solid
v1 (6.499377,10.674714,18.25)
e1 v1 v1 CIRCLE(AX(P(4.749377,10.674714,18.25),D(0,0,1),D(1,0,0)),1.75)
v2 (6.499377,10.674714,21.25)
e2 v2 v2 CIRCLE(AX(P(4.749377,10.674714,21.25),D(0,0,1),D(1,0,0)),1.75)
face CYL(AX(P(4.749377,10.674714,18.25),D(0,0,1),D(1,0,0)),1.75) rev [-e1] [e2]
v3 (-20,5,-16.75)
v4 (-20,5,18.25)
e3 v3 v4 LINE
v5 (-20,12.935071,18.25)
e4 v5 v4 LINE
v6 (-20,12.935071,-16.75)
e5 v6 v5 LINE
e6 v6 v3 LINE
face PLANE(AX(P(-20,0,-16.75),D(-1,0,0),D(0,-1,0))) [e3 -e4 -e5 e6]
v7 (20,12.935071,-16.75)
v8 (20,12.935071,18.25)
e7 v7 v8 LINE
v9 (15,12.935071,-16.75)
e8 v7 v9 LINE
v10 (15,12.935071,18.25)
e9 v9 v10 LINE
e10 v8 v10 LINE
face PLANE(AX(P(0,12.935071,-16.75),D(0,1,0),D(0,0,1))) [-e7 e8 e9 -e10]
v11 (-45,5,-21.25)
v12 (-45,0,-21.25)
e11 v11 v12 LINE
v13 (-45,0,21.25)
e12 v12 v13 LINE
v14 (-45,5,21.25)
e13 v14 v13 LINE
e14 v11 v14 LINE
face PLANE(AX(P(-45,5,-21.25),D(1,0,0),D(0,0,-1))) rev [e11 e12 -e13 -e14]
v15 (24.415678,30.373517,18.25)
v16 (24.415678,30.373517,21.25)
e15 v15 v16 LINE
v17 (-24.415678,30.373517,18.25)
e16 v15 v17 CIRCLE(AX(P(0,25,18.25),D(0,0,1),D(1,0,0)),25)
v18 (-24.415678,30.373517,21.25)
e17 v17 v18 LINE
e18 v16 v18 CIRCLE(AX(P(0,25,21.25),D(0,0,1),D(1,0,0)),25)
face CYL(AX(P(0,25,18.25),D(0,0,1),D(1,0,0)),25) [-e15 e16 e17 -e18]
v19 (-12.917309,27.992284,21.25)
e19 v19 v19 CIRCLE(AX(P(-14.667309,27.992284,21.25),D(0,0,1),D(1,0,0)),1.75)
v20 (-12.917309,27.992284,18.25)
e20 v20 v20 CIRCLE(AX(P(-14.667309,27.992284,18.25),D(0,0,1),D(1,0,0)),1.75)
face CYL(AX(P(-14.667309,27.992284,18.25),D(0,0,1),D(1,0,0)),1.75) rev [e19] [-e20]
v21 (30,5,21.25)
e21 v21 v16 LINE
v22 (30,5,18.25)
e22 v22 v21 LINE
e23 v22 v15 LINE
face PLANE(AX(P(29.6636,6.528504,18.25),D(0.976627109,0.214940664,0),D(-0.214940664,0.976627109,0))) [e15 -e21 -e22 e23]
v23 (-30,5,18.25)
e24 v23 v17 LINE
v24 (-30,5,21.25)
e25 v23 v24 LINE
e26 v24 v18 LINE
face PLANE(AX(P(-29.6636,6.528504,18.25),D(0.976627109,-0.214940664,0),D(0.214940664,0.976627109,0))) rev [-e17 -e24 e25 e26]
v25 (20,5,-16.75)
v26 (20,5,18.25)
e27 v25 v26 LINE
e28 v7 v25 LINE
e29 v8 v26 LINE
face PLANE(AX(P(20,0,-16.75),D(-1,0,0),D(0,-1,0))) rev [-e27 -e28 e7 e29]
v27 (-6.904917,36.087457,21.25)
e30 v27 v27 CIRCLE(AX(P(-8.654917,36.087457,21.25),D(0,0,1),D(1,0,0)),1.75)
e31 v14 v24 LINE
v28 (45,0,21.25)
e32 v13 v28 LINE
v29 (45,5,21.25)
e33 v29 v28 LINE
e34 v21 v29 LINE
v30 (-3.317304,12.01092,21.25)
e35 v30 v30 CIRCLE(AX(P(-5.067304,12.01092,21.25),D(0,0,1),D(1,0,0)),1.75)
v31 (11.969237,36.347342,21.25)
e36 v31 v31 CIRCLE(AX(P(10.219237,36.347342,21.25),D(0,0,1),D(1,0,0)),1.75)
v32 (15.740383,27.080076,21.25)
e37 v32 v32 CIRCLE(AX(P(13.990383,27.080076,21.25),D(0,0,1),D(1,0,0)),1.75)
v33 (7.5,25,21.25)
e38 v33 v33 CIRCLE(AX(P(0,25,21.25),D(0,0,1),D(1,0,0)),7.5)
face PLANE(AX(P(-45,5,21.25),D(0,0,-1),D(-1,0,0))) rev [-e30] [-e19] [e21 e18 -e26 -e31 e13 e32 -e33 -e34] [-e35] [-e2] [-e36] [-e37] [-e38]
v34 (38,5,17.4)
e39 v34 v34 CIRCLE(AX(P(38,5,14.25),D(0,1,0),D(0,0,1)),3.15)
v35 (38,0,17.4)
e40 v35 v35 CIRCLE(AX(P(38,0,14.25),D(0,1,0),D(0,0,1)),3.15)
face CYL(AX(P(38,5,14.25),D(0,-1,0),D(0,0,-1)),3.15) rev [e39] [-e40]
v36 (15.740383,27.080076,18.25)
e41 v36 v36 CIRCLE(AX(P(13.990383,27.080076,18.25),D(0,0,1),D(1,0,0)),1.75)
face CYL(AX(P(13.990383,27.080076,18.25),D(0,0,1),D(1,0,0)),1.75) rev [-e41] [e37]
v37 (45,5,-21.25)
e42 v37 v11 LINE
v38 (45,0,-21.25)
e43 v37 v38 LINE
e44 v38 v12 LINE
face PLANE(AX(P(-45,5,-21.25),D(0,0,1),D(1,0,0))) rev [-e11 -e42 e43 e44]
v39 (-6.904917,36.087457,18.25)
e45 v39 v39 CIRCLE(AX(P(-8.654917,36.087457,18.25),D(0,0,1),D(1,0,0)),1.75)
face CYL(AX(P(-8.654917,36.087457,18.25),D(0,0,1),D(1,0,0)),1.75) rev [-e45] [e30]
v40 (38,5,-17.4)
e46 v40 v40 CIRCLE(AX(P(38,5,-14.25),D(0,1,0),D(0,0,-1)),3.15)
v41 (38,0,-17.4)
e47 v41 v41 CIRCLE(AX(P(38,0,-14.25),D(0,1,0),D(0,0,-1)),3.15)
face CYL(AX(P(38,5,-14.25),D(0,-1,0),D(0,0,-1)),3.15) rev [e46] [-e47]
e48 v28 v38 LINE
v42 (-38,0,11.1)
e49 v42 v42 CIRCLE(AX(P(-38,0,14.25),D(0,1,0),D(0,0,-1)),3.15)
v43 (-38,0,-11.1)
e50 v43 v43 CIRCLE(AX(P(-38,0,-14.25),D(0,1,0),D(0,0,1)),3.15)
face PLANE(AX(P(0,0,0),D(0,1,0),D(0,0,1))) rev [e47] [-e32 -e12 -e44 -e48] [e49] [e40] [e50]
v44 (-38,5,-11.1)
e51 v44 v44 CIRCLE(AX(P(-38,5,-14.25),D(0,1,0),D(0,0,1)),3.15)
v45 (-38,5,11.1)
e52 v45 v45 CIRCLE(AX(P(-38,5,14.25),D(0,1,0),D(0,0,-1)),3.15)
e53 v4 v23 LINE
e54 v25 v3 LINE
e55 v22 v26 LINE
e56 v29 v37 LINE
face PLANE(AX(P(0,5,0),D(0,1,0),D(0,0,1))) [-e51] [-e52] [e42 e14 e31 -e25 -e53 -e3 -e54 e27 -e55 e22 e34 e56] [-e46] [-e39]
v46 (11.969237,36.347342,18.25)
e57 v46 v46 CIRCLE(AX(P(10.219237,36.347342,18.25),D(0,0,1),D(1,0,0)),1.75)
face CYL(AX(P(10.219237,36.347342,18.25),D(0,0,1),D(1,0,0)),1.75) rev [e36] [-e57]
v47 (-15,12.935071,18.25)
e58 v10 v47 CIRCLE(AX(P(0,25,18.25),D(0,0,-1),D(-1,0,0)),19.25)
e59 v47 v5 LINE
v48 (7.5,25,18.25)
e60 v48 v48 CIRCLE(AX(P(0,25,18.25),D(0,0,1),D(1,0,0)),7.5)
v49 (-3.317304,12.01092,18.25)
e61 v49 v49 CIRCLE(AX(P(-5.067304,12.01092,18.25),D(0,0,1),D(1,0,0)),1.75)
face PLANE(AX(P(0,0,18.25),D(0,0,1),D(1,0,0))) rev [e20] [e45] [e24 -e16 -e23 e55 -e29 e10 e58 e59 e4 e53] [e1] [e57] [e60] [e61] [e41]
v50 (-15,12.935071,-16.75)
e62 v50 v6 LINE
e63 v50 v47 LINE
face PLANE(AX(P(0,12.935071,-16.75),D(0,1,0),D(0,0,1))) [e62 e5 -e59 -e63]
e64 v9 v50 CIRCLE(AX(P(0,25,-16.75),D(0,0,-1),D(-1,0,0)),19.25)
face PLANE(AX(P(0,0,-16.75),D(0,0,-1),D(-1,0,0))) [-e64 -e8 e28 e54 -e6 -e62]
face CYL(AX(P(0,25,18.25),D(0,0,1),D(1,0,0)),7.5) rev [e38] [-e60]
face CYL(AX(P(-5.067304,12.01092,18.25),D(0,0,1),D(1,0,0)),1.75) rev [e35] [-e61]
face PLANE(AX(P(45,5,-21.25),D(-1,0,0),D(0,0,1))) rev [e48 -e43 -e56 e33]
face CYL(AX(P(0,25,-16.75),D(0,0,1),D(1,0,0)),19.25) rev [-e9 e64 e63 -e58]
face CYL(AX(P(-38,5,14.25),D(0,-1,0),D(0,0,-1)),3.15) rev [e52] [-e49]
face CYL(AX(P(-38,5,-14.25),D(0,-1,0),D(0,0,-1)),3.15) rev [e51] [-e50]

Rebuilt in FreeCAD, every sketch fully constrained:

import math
import FreeCAD as App
import Part
import Sketcher
Q = App.Units.Quantity

doc = App.newDocument("Part")
params = doc.addObject("Spreadsheet::Sheet", "Params")
for row, (alias, value) in enumerate([
    ("sketch1_diameter", "6.3 mm"),
    ("sketch1_width", "90 mm"),
    ("sketch1_height", "42.5 mm"),
    ("pad1_length", "5 mm"),
    ("sketch2_diameter", "15 mm"),
    ("sketch2_radius", "25 mm"),
    ("sketch2_diameter2", "3.5 mm"),
    ("sketch2_width", "60 mm"),
    ("pad2_length", "3 mm"),
    ("sketch3_width", "5 mm"),
    ("sketch3_width2", "40 mm"),
    ("sketch3_radius", "19.25 mm"),
    ("pad3_length", "35 mm"),
], start=1):
    params.set(f"A{row}", alias)
    params.set(f"B{row}", "=" + value)
    params.setAlias(f"B{row}", alias)

body = doc.addObject("PartDesign::Body", "Body")

# Sketch on XZ plane
sketch1 = doc.addObject("Sketcher::SketchObject", "Sketch")
body.addObject(sketch1)
sketch1.AttachmentSupport = (doc.XZ_Plane, [""])
sketch1.MapMode = "FlatFace"
sketch1.addGeometry(Part.LineSegment(App.Vector(-45, -21.2, 0), App.Vector(-45, 21.2, 0)), False)
sketch1.addGeometry(Part.LineSegment(App.Vector(-45, 21.2, 0), App.Vector(45, 21.2, 0)), False)
sketch1.addGeometry(Part.LineSegment(App.Vector(45, 21.2, 0), App.Vector(45, -21.2, 0)), False)
sketch1.addGeometry(Part.LineSegment(App.Vector(45, -21.2, 0), App.Vector(-45, -21.2, 0)), False)
sketch1.addGeometry(Part.Circle(App.Vector(-38, 14.2, 0), App.Vector(0, 0, 1), 3.1), False)
sketch1.addGeometry(Part.Circle(App.Vector(38, 14.2, 0), App.Vector(0, 0, 1), 3.1), False)
sketch1.addGeometry(Part.Circle(App.Vector(-38, -14.2, 0), App.Vector(0, 0, 1), 3.1), False)
sketch1.addGeometry(Part.Circle(App.Vector(38, -14.2, 0), App.Vector(0, 0, 1), 3.1), False)
sketch1.addConstraint(Sketcher.Constraint("Coincident", 0, 2, 1, 1))
sketch1.addConstraint(Sketcher.Constraint("Coincident", 1, 2, 2, 1))
sketch1.addConstraint(Sketcher.Constraint("Coincident", 2, 2, 3, 1))
sketch1.addConstraint(Sketcher.Constraint("Coincident", 3, 2, 0, 1))
sketch1.addConstraint(Sketcher.Constraint("Vertical", 0))
sketch1.addConstraint(Sketcher.Constraint("Horizontal", 1))
sketch1.addConstraint(Sketcher.Constraint("Vertical", 2))
sketch1.addConstraint(Sketcher.Constraint("Horizontal", 3))
sketch1.addConstraint(Sketcher.Constraint("Equal", 4, 5))
sketch1.addConstraint(Sketcher.Constraint("Equal", 5, 6))
sketch1.addConstraint(Sketcher.Constraint("Equal", 6, 7))
sketch1.addConstraint(Sketcher.Constraint("Symmetric", 5, 3, 6, 3, -1, 1))
sketch1.addConstraint(Sketcher.Constraint("Symmetric", 4, 3, 7, 3, -1, 1))
sketch1.addConstraint(Sketcher.Constraint("Symmetric", 0, 2, 2, 2, -1, 1))
sketch1.addConstraint(Sketcher.Constraint("Symmetric", 4, 3, 5, 3, -2))
sketch1.addConstraint(Sketcher.Constraint("Diameter", 4, Q("6.3 mm")))
sketch1.addConstraint(Sketcher.Constraint("DistanceX", 1, 1, 1, 2, Q("90 mm")))
sketch1.addConstraint(Sketcher.Constraint("DistanceY", 0, 1, 0, 2, Q("42.5 mm")))
sketch1.addConstraint(Sketcher.Constraint("DistanceX", 4, 3, -1, 1, Q("38 mm")))
sketch1.addConstraint(Sketcher.Constraint("DistanceY", 4, 3, 0, 2, Q("7 mm")))
sketch1.setExpression("Constraints[15]", "Params.sketch1_diameter")
sketch1.setExpression("Constraints[16]", "Params.sketch1_width")
sketch1.setExpression("Constraints[17]", "Params.sketch1_height")
pad1 = doc.addObject("PartDesign::Pad", "Pad")
body.addObject(pad1)
pad1.Profile = sketch1
pad1.setExpression("Length", "Params.pad1_length")
pad1.Reversed = True

# Sketch on XY plane
sketch2 = doc.addObject("Sketcher::SketchObject", "Sketch001")
body.addObject(sketch2)
sketch2.AttachmentSupport = (doc.XY_Plane, [""])
sketch2.MapMode = "FlatFace"
sketch2.AttachmentOffset = App.Placement(App.Vector(0, 0, 21.25), App.Rotation())
sketch2.addGeometry(Part.LineSegment(App.Vector(-30, 5, 0), App.Vector(30, 5, 0)), False)
sketch2.addGeometry(Part.LineSegment(App.Vector(30, 5, 0), App.Vector(24.4, 30.4, 0)), False)
sketch2.addGeometry(Part.ArcOfCircle(Part.Circle(App.Vector(0, 25, 0), App.Vector(0, 0, 1), 25), math.radians(12), math.radians(168)), False)
sketch2.addGeometry(Part.LineSegment(App.Vector(-24.4, 30.4, 0), App.Vector(-30, 5, 0)), False)
sketch2.addGeometry(Part.Circle(App.Vector(-5.1, 12, 0), App.Vector(0, 0, 1), 1.8), False)
sketch2.addGeometry(Part.Circle(App.Vector(4.7, 10.7, 0), App.Vector(0, 0, 1), 1.8), False)
sketch2.addGeometry(Part.Circle(App.Vector(-14.7, 28, 0), App.Vector(0, 0, 1), 1.8), False)
sketch2.addGeometry(Part.Circle(App.Vector(-8.7, 36.1, 0), App.Vector(0, 0, 1), 1.8), False)
sketch2.addGeometry(Part.Circle(App.Vector(0, 25, 0), App.Vector(0, 0, 1), 7.5), False)
sketch2.addGeometry(Part.Circle(App.Vector(14, 27.1, 0), App.Vector(0, 0, 1), 1.8), False)
sketch2.addGeometry(Part.Circle(App.Vector(10.2, 36.3, 0), App.Vector(0, 0, 1), 1.8), False)
sketch2.addConstraint(Sketcher.Constraint("Coincident", 0, 2, 1, 1))
sketch2.addConstraint(Sketcher.Constraint("Tangent", 1, 2, 2, 1))
sketch2.addConstraint(Sketcher.Constraint("Tangent", 2, 2, 3, 1))
sketch2.addConstraint(Sketcher.Constraint("Coincident", 3, 2, 0, 1))
sketch2.addConstraint(Sketcher.Constraint("Horizontal", 0))
sketch2.addConstraint(Sketcher.Constraint("Coincident", 8, 3, 2, 3))
sketch2.addConstraint(Sketcher.Constraint("Equal", 4, 5))
sketch2.addConstraint(Sketcher.Constraint("Equal", 5, 6))
sketch2.addConstraint(Sketcher.Constraint("Equal", 6, 7))
sketch2.addConstraint(Sketcher.Constraint("Equal", 7, 9))
sketch2.addConstraint(Sketcher.Constraint("Equal", 9, 10))
sketch2.addConstraint(Sketcher.Constraint("Symmetric", 1, 2, 2, 2, -2))
sketch2.addConstraint(Sketcher.Constraint("Diameter", 8, Q("15 mm")))
sketch2.addConstraint(Sketcher.Constraint("Radius", 2, Q("25 mm")))
sketch2.addConstraint(Sketcher.Constraint("Diameter", 4, Q("3.5 mm")))
sketch2.addConstraint(Sketcher.Constraint("DistanceX", 0, 1, 0, 2, Q("60 mm")))
sketch2.addConstraint(Sketcher.Constraint("DistanceY", -1, 1, 2, 3, Q("25 mm")))
sketch2.addConstraint(Sketcher.Constraint("DistanceY", -1, 1, 0, 2, Q("5 mm")))
sketch2.addConstraint(Sketcher.Constraint("DistanceX", 7, 3, 9, 3, Q("22.6453 mm")))
sketch2.addConstraint(Sketcher.Constraint("DistanceY", -1, 1, 4, 3, Q("12.01092 mm")))
sketch2.addConstraint(Sketcher.Constraint("DistanceX", 6, 3, -1, 1, Q("14.667309 mm")))
sketch2.addConstraint(Sketcher.Constraint("DistanceY", -1, 1, 10, 3, Q("36.347342 mm")))
sketch2.addConstraint(Sketcher.Constraint("DistanceX", 4, 3, 5, 3, Q("9.816681 mm")))
sketch2.addConstraint(Sketcher.Constraint("DistanceY", 5, 3, 6, 3, Q("17.31757 mm")))
sketch2.addConstraint(Sketcher.Constraint("DistanceX", 6, 3, 7, 3, Q("6.012392 mm")))
sketch2.addConstraint(Sketcher.Constraint("DistanceY", 9, 3, 7, 3, Q("9.00738 mm")))
sketch2.addConstraint(Sketcher.Constraint("DistanceX", 5, 3, 10, 3, Q("5.46986 mm")))
sketch2.addConstraint(Sketcher.Constraint("DistanceY", 9, 3, 1, 2, Q("3.29344 mm")))
sketch2.addConstraint(Sketcher.Constraint("DistanceX", 10, 3, 1, 2, Q("14.196441 mm")))
sketch2.addConstraint(Sketcher.Constraint("DistanceY", -1, 1, 5, 3, Q("10.674714 mm")))
sketch2.setExpression("Constraints[12]", "Params.sketch2_diameter")
sketch2.setExpression("Constraints[13]", "Params.sketch2_radius")
sketch2.setExpression("Constraints[14]", "Params.sketch2_diameter2")
sketch2.setExpression("Constraints[15]", "Params.sketch2_width")
pad2 = doc.addObject("PartDesign::Pad", "Pad001")
body.addObject(pad2)
pad2.Profile = sketch2
pad2.setExpression("Length", "Params.pad2_length")
pad2.Reversed = True

# Sketch on XY plane
sketch3 = doc.addObject("Sketcher::SketchObject", "Sketch002")
body.addObject(sketch3)
sketch3.AttachmentSupport = (doc.XY_Plane, [""])
sketch3.MapMode = "FlatFace"
sketch3.AttachmentOffset = App.Placement(App.Vector(0, 0, 18.25), App.Rotation())
sketch3.addGeometry(Part.ArcOfCircle(Part.Circle(App.Vector(0, 25, 0), App.Vector(0, 0, 1), 19), math.radians(-141), math.radians(-39)), False)
sketch3.addGeometry(Part.LineSegment(App.Vector(15, 13, 0), App.Vector(20, 13, 0)), False)
sketch3.addGeometry(Part.LineSegment(App.Vector(20, 13, 0), App.Vector(20, 5, 0)), False)
sketch3.addGeometry(Part.LineSegment(App.Vector(20, 5, 0), App.Vector(-20, 5, 0)), False)
sketch3.addGeometry(Part.LineSegment(App.Vector(-20, 5, 0), App.Vector(-20, 13, 0)), False)
sketch3.addGeometry(Part.LineSegment(App.Vector(-20, 13, 0), App.Vector(-15, 13, 0)), False)
sketch3.addConstraint(Sketcher.Constraint("Coincident", 0, 2, 1, 1))
sketch3.addConstraint(Sketcher.Constraint("Coincident", 1, 2, 2, 1))
sketch3.addConstraint(Sketcher.Constraint("Coincident", 2, 2, 3, 1))
sketch3.addConstraint(Sketcher.Constraint("Coincident", 3, 2, 4, 1))
sketch3.addConstraint(Sketcher.Constraint("Coincident", 4, 2, 5, 1))
sketch3.addConstraint(Sketcher.Constraint("Coincident", 5, 2, 0, 1))
sketch3.addConstraint(Sketcher.Constraint("Horizontal", 1))
sketch3.addConstraint(Sketcher.Constraint("Vertical", 2))
sketch3.addConstraint(Sketcher.Constraint("Horizontal", 3))
sketch3.addConstraint(Sketcher.Constraint("Vertical", 4))
sketch3.addConstraint(Sketcher.Constraint("Horizontal", 5))
sketch3.addConstraint(Sketcher.Constraint("Symmetric", 1, 2, 4, 2, -2))
sketch3.addConstraint(Sketcher.Constraint("PointOnObject", 0, 3, -2))
sketch3.addConstraint(Sketcher.Constraint("DistanceX", 1, 1, 1, 2, Q("5 mm")))
sketch3.addConstraint(Sketcher.Constraint("DistanceX", 3, 2, 3, 1, Q("40 mm")))
sketch3.addConstraint(Sketcher.Constraint("Radius", 0, Q("19.25 mm")))
sketch3.addConstraint(Sketcher.Constraint("DistanceY", -1, 1, 0, 3, Q("25 mm")))
sketch3.addConstraint(Sketcher.Constraint("DistanceY", -1, 1, 2, 2, Q("5 mm")))
sketch3.setExpression("Constraints[13]", "Params.sketch3_width")
sketch3.setExpression("Constraints[14]", "Params.sketch3_width2")
sketch3.setExpression("Constraints[15]", "Params.sketch3_radius")
pad3 = doc.addObject("PartDesign::Pad", "Pad002")
body.addObject(pad3)
pad3.Profile = sketch3
pad3.setExpression("Length", "Params.pad3_length")
pad3.Reversed = True

doc.recompute()
